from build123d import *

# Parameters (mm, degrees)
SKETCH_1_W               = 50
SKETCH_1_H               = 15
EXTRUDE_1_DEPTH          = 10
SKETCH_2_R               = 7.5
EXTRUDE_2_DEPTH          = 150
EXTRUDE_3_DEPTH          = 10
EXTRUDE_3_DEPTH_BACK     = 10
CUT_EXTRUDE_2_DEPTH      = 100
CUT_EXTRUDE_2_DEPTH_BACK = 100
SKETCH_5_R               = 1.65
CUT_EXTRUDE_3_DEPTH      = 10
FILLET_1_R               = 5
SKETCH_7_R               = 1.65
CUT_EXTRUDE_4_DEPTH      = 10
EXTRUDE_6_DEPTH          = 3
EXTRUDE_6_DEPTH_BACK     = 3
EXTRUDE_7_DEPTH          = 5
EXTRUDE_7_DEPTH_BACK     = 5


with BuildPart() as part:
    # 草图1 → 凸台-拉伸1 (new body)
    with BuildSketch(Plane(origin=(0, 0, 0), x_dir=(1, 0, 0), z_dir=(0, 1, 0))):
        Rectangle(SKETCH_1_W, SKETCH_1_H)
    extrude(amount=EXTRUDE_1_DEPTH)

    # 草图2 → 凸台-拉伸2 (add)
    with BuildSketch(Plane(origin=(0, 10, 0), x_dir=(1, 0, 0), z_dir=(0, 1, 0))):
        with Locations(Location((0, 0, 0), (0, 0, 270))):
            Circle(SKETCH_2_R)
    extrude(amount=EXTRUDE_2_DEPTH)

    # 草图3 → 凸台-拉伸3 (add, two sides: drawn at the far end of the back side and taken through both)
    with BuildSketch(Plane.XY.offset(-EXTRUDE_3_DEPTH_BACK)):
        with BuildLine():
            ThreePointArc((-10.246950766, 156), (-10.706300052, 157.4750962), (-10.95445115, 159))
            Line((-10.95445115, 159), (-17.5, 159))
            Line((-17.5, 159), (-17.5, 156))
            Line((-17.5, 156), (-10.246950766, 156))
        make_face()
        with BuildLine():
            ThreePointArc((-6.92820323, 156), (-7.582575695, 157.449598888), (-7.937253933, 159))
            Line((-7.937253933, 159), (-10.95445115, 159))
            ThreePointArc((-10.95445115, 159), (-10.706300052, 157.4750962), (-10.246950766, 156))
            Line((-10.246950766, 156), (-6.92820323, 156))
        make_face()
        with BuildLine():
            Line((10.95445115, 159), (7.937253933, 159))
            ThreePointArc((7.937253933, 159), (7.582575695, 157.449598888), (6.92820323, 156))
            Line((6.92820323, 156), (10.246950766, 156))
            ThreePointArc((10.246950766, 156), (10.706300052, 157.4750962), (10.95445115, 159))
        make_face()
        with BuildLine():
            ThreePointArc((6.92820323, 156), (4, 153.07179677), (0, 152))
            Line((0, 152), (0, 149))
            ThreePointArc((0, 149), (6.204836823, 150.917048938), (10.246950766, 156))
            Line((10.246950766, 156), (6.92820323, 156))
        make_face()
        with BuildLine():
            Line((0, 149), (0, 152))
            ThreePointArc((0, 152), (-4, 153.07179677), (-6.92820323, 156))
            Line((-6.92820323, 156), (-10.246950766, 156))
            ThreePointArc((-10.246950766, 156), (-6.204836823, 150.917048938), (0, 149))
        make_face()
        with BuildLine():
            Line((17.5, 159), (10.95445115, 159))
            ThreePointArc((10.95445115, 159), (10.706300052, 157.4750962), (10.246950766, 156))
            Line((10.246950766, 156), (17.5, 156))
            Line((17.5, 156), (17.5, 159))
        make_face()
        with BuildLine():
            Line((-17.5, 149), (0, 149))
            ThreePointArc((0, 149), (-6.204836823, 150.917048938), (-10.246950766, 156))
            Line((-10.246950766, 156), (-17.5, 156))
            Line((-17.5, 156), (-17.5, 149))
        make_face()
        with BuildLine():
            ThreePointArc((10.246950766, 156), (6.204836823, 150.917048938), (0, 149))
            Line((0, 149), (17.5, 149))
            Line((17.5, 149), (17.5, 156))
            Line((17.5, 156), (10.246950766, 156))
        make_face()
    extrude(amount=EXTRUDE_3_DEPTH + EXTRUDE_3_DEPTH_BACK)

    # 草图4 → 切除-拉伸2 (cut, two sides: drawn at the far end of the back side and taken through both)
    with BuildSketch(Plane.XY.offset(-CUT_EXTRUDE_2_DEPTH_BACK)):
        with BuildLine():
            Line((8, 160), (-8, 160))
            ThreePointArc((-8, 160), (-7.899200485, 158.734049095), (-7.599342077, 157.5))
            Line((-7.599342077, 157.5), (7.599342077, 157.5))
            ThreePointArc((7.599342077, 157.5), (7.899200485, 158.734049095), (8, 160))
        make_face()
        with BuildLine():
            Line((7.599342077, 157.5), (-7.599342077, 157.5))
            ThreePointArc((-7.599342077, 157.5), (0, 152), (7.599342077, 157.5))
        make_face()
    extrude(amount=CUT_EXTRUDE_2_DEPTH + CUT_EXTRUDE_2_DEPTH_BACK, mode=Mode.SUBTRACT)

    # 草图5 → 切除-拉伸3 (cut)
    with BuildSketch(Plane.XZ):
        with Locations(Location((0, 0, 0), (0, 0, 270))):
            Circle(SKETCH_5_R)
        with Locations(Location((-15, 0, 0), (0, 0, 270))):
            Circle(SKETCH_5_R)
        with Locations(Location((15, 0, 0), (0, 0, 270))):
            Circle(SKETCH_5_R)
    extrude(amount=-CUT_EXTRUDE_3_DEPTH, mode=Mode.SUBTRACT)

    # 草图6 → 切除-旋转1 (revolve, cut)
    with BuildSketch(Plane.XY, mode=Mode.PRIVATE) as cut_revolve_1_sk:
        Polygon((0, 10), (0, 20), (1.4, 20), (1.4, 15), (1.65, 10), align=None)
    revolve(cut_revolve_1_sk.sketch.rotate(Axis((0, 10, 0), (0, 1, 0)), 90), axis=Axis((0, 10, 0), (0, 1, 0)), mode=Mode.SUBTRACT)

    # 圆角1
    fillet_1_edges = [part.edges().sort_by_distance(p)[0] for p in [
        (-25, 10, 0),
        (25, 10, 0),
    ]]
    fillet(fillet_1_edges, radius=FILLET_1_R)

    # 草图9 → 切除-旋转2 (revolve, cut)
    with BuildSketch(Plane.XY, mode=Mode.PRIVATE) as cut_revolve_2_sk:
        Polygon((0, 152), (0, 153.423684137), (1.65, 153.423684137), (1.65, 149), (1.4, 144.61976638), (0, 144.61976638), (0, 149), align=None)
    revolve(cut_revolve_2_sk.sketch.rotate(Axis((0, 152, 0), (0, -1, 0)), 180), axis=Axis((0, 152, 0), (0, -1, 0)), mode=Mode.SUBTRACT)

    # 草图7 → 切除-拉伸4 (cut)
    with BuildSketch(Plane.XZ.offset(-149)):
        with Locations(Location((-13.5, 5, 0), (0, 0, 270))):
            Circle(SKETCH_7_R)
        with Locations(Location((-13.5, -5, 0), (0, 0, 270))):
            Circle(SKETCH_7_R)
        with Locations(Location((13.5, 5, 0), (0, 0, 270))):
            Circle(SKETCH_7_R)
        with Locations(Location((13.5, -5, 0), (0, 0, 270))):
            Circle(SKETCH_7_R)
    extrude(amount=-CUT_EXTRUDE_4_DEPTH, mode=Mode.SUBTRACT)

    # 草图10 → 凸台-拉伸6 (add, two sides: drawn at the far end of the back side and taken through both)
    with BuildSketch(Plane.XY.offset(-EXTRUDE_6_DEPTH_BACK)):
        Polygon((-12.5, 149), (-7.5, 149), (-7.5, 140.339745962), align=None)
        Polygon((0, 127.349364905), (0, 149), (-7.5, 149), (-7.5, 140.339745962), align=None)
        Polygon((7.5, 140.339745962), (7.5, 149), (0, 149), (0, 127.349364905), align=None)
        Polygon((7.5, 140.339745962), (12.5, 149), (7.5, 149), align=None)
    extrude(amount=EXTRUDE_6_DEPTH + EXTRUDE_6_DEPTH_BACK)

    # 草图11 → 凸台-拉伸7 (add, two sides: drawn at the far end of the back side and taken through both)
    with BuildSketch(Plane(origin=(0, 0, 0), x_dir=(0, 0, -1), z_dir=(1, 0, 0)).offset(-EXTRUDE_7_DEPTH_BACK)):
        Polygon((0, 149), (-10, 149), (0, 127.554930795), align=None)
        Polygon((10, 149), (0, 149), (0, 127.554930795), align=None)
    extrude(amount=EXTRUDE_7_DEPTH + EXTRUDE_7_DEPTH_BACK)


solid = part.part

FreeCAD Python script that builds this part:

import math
import FreeCAD as App
import Part
import Sketcher

V = App.Vector
Q = App.Units.Quantity


def edges_at(feature, points):
    """Names of the edges that pass closest to the given points."""
    edges = feature.Shape.Edges
    near = lambda p: min(range(len(edges)), key=lambda i: edges[i].distToShape(Part.Vertex(*p))[0])
    return sorted({f"Edge{near(p) + 1}" for p in points})

doc = App.newDocument("Part")
body = doc.addObject("PartDesign::Body", "Body")

sketch1 = body.newObject("Sketcher::SketchObject", "Sketch")
sketch1.AttachmentSupport = (doc.getObject("XZ_Plane"), [""])
sketch1.MapMode = "FlatFace"
sketch1.addGeometry(Part.LineSegment(V(-25, -8, 0), V(-25, 8, 0)), False)
sketch1.addGeometry(Part.LineSegment(V(-25, 8, 0), V(25, 8, 0)), False)
sketch1.addGeometry(Part.LineSegment(V(25, 8, 0), V(25, -8, 0)), False)
sketch1.addGeometry(Part.LineSegment(V(25, -8, 0), V(-25, -8, 0)), False)
sketch1.addConstraint(Sketcher.Constraint("Coincident", 0, 2, 1, 1))
sketch1.addConstraint(Sketcher.Constraint("Coincident", 1, 2, 2, 1))
sketch1.addConstraint(Sketcher.Constraint("Coincident", 2, 2, 3, 1))
sketch1.addConstraint(Sketcher.Constraint("Coincident", 3, 2, 0, 1))
sketch1.addConstraint(Sketcher.Constraint("Vertical", 0))
sketch1.addConstraint(Sketcher.Constraint("Horizontal", 1))
sketch1.addConstraint(Sketcher.Constraint("Vertical", 2))
sketch1.addConstraint(Sketcher.Constraint("Horizontal", 3))
sketch1.addConstraint(Sketcher.Constraint("Symmetric", 0, 2, 2, 2, -1, 1))
sketch1.addConstraint(Sketcher.Constraint("DistanceX", 1, 1, 1, 2, 50.0))
sketch1.addConstraint(Sketcher.Constraint("DistanceY", 0, 1, 0, 2, 15.0))
pad1 = body.newObject("PartDesign::Pad", "Pad")
pad1.Profile = sketch1
pad1.Length = 10
pad1.Reversed = True

sketch2 = body.newObject("Sketcher::SketchObject", "Sketch001")
sketch2.AttachmentSupport = (doc.getObject("XZ_Plane"), [""])
sketch2.MapMode = "FlatFace"
sketch2.AttachmentOffset = App.Placement(V(0, 0, -10), App.Rotation())
sketch2.addGeometry(Part.Circle(V(0, 0, 0), V(0, 0, 1), 8), False)
sketch2.addConstraint(Sketcher.Constraint("Coincident", 0, 3, -1, 1))
sketch2.addConstraint(Sketcher.Constraint("Diameter", 0, 15.0))
pad2 = body.newObject("PartDesign::Pad", "Pad001")
pad2.Profile = sketch2
pad2.Length = 150
pad2.Reversed = True

sketch3 = body.newObject("Sketcher::SketchObject", "Sketch002")
sketch3.AttachmentSupport = (doc.getObject("XY_Plane"), [""])
sketch3.MapMode = "FlatFace"
sketch3.addGeometry(Part.ArcOfCircle(Part.Circle(V(0, 160, 0), V(0, 0, 1), 8), math.radians(-173), math.radians(-150)), False)
sketch3.addGeometry(Part.LineSegment(V(-7.9, 159, 0), V(-17.5, 159, 0)), False)
sketch3.addGeometry(Part.LineSegment(V(-17.5, 159, 0), V(-17.5, 149, 0)), False)
sketch3.addGeometry(Part.LineSegment(V(-17.5, 149, 0), V(17.5, 149, 0)), False)
sketch3.addGeometry(Part.LineSegment(V(17.5, 149, 0), V(17.5, 159, 0)), False)
sketch3.addGeometry(Part.LineSegment(V(17.5, 159, 0), V(7.9, 159, 0)), False)
sketch3.addGeometry(Part.ArcOfCircle(Part.Circle(V(0, 160, 0), V(0, 0, 1), 8), math.radians(-30), math.radians(-7)), False)
sketch3.addGeometry(Part.ArcOfCircle(Part.Circle(V(0, 160, 0), V(0, 0, 1), 8), math.radians(-90), math.radians(-30)), False)
sketch3.addGeometry(Part.ArcOfCircle(Part.Circle(V(0, 160, 0), V(0, 0, 1), 8), math.radians(-150), math.radians(-90)), False)
sketch3.addConstraint(Sketcher.Constraint("Coincident", 0, 1, 1, 1))
sketch3.addConstraint(Sketcher.Constraint("Coincident", 1, 2, 2, 1))
sketch3.addConstraint(Sketcher.Constraint("Coincident", 2, 2, 3, 1))
sketch3.addConstraint(Sketcher.Constraint("Coincident", 3, 2, 4, 1))
sketch3.addConstraint(Sketcher.Constraint("Coincident", 4, 2, 5, 1))
sketch3.addConstraint(Sketcher.Constraint("Coincident", 5, 2, 6, 2))
sketch3.addConstraint(Sketcher.Constraint("Tangent", 6, 1, 7, 2))
sketch3.addConstraint(Sketcher.Constraint("Tangent", 7, 1, 8, 2))
sketch3.addConstraint(Sketcher.Constraint("Tangent", 8, 1, 0, 2))
sketch3.addConstraint(Sketcher.Constraint("Horizontal", 1))
sketch3.addConstraint(Sketcher.Constraint("Vertical", 2))
sketch3.addConstraint(Sketcher.Constraint("Horizontal", 3))
sketch3.addConstraint(Sketcher.Constraint("Vertical", 4))
sketch3.addConstraint(Sketcher.Constraint("Horizontal", 5))
sketch3.addConstraint(Sketcher.Constraint("Coincident", 6, 3, 0, 3))
sketch3.addConstraint(Sketcher.Constraint("Equal", 0, 6))
sketch3.addConstraint(Sketcher.Constraint("Symmetric", 1, 2, 4, 2, -2))
sketch3.addConstraint(Sketcher.Constraint("Symmetric", 6, 1, 8, 1, -2))
sketch3.addConstraint(Sketcher.Constraint("PointOnObject", 7, 1, -2))
sketch3.addConstraint(Sketcher.Constraint("Radius", 0, 8.0))
sketch3.addConstraint(Sketcher.Constraint("DistanceX", 3, 1, 3, 2, 35.0))
sketch3.addConstraint(Sketcher.Constraint("DistanceY", 2, 2, 2, 1, 10.0))
sketch3.addConstraint(Sketcher.Constraint("DistanceY", -1, 1, 0, 3, 160.0))
sketch3.addConstraint(Sketcher.Constraint("DistanceY", -1, 1, 0, 1, 159.0))
sketch3.addConstraint(Sketcher.Constraint("DistanceY", -1, 1, 6, 1, 156.0))
pad3 = body.newObject("PartDesign::Pad", "Pad002")
pad3.Profile = sketch3
pad3.Type = "TwoLengths"
pad3.Length = 10
pad3.Length2 = 10

sketch4 = body.newObject("Sketcher::SketchObject", "Sketch003")
sketch4.AttachmentSupport = (doc.getObject("XY_Plane"), [""])
sketch4.MapMode = "FlatFace"
sketch4.addGeometry(Part.LineSegment(V(8, 160, 0), V(-8, 160, 0)), False)
sketch4.addGeometry(Part.ArcOfCircle(Part.Circle(V(0, 160, 0), V(0, 0, 1), 8), math.radians(-180), math.radians(-161.79)), False)
sketch4.addGeometry(Part.ArcOfCircle(Part.Circle(V(0, 160, 0), V(0, 0, 1), 8), math.radians(-162), math.radians(-18)), False)
sketch4.addGeometry(Part.ArcOfCircle(Part.Circle(V(0, 160, 0), V(0, 0, 1), 8), math.radians(-18.21), math.radians(0)), False)
sketch4.addConstraint(Sketcher.Constraint("Coincident", 0, 2, 1, 1))
sketch4.addConstraint(Sketcher.Constraint("Tangent", 1, 2, 2, 1))
sketch4.addConstraint(Sketcher.Constraint("Tangent", 2, 2, 3, 1))
sketch4.addConstraint(Sketcher.Constraint("Coincident", 3, 2, 0, 1))
sketch4.addConstraint(Sketcher.Constraint("Horizontal", 0))
sketch4.addConstraint(Sketcher.Constraint("Coincident", 3, 3, 1, 3))
sketch4.addConstraint(Sketcher.Constraint("Symmetric", 1, 2, 2, 2, -2))
sketch4.addConstraint(Sketcher.Constraint("Horizontal", 3, 3, 0, 2))
sketch4.addConstraint(Sketcher.Constraint("Radius", 1, 8.0))
sketch4.addConstraint(Sketcher.Constraint("DistanceY", -1, 1, 1, 3, 160.0))
sketch4.addConstraint(Sketcher.Constraint("DistanceY", -1, 1, 1, 2, 157.5))
pocket1 = body.newObject("PartDesign::Pocket", "Pocket")
pocket1.Profile = sketch4
pocket1.Type = "ThroughAll"
pocket1.Midplane = True

sketch5 = body.newObject("Sketcher::SketchObject", "Sketch004")
sketch5.AttachmentSupport = (doc.getObject("XZ_Plane"), [""])
sketch5.MapMode = "FlatFace"
sketch5.addGeometry(Part.Circle(V(0, 0, 0), V(0, 0, 1), 1.6), False)
sketch5.addGeometry(Part.Circle(V(-15, 0, 0), V(0, 0, 1), 1.6), False)
sketch5.addGeometry(Part.Circle(V(15, 0, 0), V(0, 0, 1), 1.6), False)
sketch5.addConstraint(Sketcher.Constraint("Coincident", 0, 3, -1, 1))
sketch5.addConstraint(Sketcher.Constraint("Equal", 0, 1))
sketch5.addConstraint(Sketcher.Constraint("Equal", 1, 2))
sketch5.addConstraint(Sketcher.Constraint("Symmetric", 1, 3, 2, 3, -1, 1))
sketch5.addConstraint(Sketcher.Constraint("PointOnObject", 1, 3, -1))
sketch5.addConstraint(Sketcher.Constraint("Diameter", 0, 3.3))
sketch5.addConstraint(Sketcher.Constraint("DistanceX", 1, 3, -1, 1, 15.0))
pocket2 = body.newObject("PartDesign::Pocket", "Pocket001")
pocket2.Profile = sketch5
pocket2.Length = 10

sketch6 = body.newObject("Sketcher::SketchObject", "Sketch005")
sketch6.AttachmentSupport = (doc.getObject("XY_Plane"), [""])
sketch6.MapMode = "FlatFace"
sketch6.addGeometry(Part.LineSegment(V(0, 20, 0), V(0, 10, 0)), False)
sketch6.addGeometry(Part.LineSegment(V(0, 10, 0), V(1.6, 10, 0)), False)
sketch6.addGeometry(Part.LineSegment(V(1.6, 10, 0), V(1.4, 15, 0)), False)
sketch6.addGeometry(Part.LineSegment(V(1.4, 15, 0), V(1.4, 20, 0)), False)
sketch6.addGeometry(Part.LineSegment(V(1.4, 20, 0), V(0, 20, 0)), False)
sketch6.addConstraint(Sketcher.Constraint("Coincident", 0, 2, 1, 1))
sketch6.addConstraint(Sketcher.Constraint("Coincident", 1, 2, 2, 1))
sketch6.addConstraint(Sketcher.Constraint("Coincident", 2, 2, 3, 1))
sketch6.addConstraint(Sketcher.Constraint("Coincident", 3, 2, 4, 1))
sketch6.addConstraint(Sketcher.Constraint("Coincident", 4, 2, 0, 1))
sketch6.addConstraint(Sketcher.Constraint("Vertical", 0))
sketch6.addConstraint(Sketcher.Constraint("Horizontal", 1))
sketch6.addConstraint(Sketcher.Constraint("Vertical", 3))
sketch6.addConstraint(Sketcher.Constraint("Horizontal", 4))
sketch6.addConstraint(Sketcher.Constraint("PointOnObject", 0, 2, -2))
sketch6.addConstraint(Sketcher.Constraint("DistanceY", 0, 2, 0, 1, 10.0))
sketch6.addConstraint(Sketcher.Constraint("DistanceY", 3, 1, 3, 2, 5.0))
sketch6.addConstraint(Sketcher.Constraint("DistanceX", 4, 2, 4, 1, 1.4))
sketch6.addConstraint(Sketcher.Constraint("DistanceY", -1, 1, 0, 2, 10.0))
sketch6.addConstraint(Sketcher.Constraint("DistanceX", 1, 1, 1, 2, 1.65))
groove = body.newObject("PartDesign::Groove", "Groove")
groove.Profile = sketch6
groove.ReferenceAxis = (sketch6, ["V_Axis"])
groove.Angle = 360
doc.recompute()

fillet = body.newObject("PartDesign::Fillet", "Fillet")
fillet.Base = (groove, edges_at(groove, [(-25, 10, 0), (25, 10, 0)]))
fillet.Radius = 5

sketch7 = body.newObject("Sketcher::SketchObject", "Sketch006")
sketch7.AttachmentSupport = (doc.getObject("XY_Plane"), [""])
sketch7.MapMode = "FlatFace"
sketch7.addGeometry(Part.LineSegment(V(0, 153.4, 0), V(0, 144.6, 0)), False)
sketch7.addGeometry(Part.LineSegment(V(0, 144.6, 0), V(1.4, 144.6, 0)), False)
sketch7.addGeometry(Part.LineSegment(V(1.4, 144.6, 0), V(1.6, 149, 0)), False)
sketch7.addGeometry(Part.LineSegment(V(1.6, 149, 0), V(1.6, 153.4, 0)), False)
sketch7.addGeometry(Part.LineSegment(V(1.6, 153.4, 0), V(0, 153.4, 0)), False)
sketch7.addConstraint(Sketcher.Constraint("Coincident", 0, 2, 1, 1))
sketch7.addConstraint(Sketcher.Constraint("Coincident", 1, 2, 2, 1))
sketch7.addConstraint(Sketcher.Constraint("Coincident", 2, 2, 3, 1))
sketch7.addConstraint(Sketcher.Constraint("Coincident", 3, 2, 4, 1))
sketch7.addConstraint(Sketcher.Constraint("Coincident", 4, 2, 0, 1))
sketch7.addConstraint(Sketcher.Constraint("Vertical", 0))
sketch7.addConstraint(Sketcher.Constraint("Horizontal", 1))
sketch7.addConstraint(Sketcher.Constraint("Vertical", 3))
sketch7.addConstraint(Sketcher.Constraint("Horizontal", 4))
sketch7.addConstraint(Sketcher.Constraint("PointOnObject", 0, 2, -2))
sketch7.addConstraint(Sketcher.Constraint("DistanceX", 1, 1, 1, 2, 1.4))
sketch7.addConstraint(Sketcher.Constraint("DistanceY", -1, 1, 2, 2, 149.0))
sketch7.addConstraint(Sketcher.Constraint("DistanceX", 4, 2, 4, 1, 1.65))
sketch7.addConstraint(Sketcher.Constraint("DistanceY", 0, 2, 0, 1, 8.803918))
sketch7.addConstraint(Sketcher.Constraint("DistanceY", 3, 1, 3, 2, 4.423684))
groove2 = body.newObject("PartDesign::Groove", "Groove001")
groove2.Profile = sketch7
groove2.ReferenceAxis = (sketch7, ["V_Axis"])
groove2.Angle = 360

sketch8 = body.newObject("Sketcher::SketchObject", "Sketch007")
sketch8.AttachmentSupport = (doc.getObject("XZ_Plane"), [""])
sketch8.MapMode = "FlatFace"
sketch8.AttachmentOffset = App.Placement(V(0, 0, -149), App.Rotation())
sketch8.addGeometry(Part.Circle(V(-13.5, 5, 0), V(0, 0, 1), 1.6), False)
sketch8.addGeometry(Part.Circle(V(-13.5, -5, 0), V(0, 0, 1), 1.6), False)
sketch8.addGeometry(Part.Circle(V(13.5, 5, 0), V(0, 0, 1), 1.6), False)
sketch8.addGeometry(Part.Circle(V(13.5, -5, 0), V(0, 0, 1), 1.6), False)
sketch8.addConstraint(Sketcher.Constraint("Equal", 0, 1))
sketch8.addConstraint(Sketcher.Constraint("Equal", 1, 2))
sketch8.addConstraint(Sketcher.Constraint("Equal", 2, 3))
sketch8.addConstraint(Sketcher.Constraint("Symmetric", 1, 3, 2, 3, -1, 1))
sketch8.addConstraint(Sketcher.Constraint("Symmetric", 0, 3, 3, 3, -1, 1))
sketch8.addConstraint(Sketcher.Constraint("Symmetric", 0, 3, 2, 3, -2))
sketch8.addConstraint(Sketcher.Constraint("Diameter", 0, 3.3))
sketch8.addConstraint(Sketcher.Constraint("DistanceY", -1, 1, 0, 3, 5.0))
sketch8.addConstraint(Sketcher.Constraint("DistanceX", 0, 3, 2, 3, 27.0))
pocket3 = body.newObject("PartDesign::Pocket", "Pocket002")
pocket3.Profile = sketch8
pocket3.Length = 10

sketch9 = body.newObject("Sketcher::SketchObject", "Sketch008")
sketch9.AttachmentSupport = (doc.getObject("XY_Plane"), [""])
sketch9.MapMode = "FlatFace"
sketch9.addGeometry(Part.LineSegment(V(12, 149, 0), V(-12, 149, 0)), False)
sketch9.addGeometry(Part.LineSegment(V(-12, 149, 0), V(0, 127, 0)), False)
sketch9.addGeometry(Part.LineSegment(V(0, 127, 0), V(12, 149, 0)), False)
sketch9.addConstraint(Sketcher.Constraint("Coincident", 0, 2, 1, 1))
sketch9.addConstraint(Sketcher.Constraint("Coincident", 1, 2, 2, 1))
sketch9.addConstraint(Sketcher.Constraint("Coincident", 2, 2, 0, 1))
sketch9.addConstraint(Sketcher.Constraint("Horizontal", 0))
sketch9.addConstraint(Sketcher.Constraint("PointOnObject", 1, 2, -2))
sketch9.addConstraint(Sketcher.Constraint("Equal", 1, 2))
sketch9.addConstraint(Sketcher.Constraint("DistanceX", 0, 2, 0, 1, 25.0))
sketch9.addConstraint(Sketcher.Constraint("Angle", 1, Q("-60 deg")))
sketch9.addConstraint(Sketcher.Constraint("DistanceY", -1, 1, 0, 2, 149.0))
pad4 = body.newObject("PartDesign::Pad", "Pad003")
pad4.Profile = sketch9
pad4.Type = "TwoLengths"
pad4.Length = 3
pad4.Length2 = 3

sketch10 = body.newObject("Sketcher::SketchObject", "Sketch009")
sketch10.AttachmentSupport = (doc.getObject("YZ_Plane"), [""])
sketch10.MapMode = "FlatFace"
sketch10.addGeometry(Part.LineSegment(V(149, 10, 0), V(128, 0, 0)), False)
sketch10.addGeometry(Part.LineSegment(V(128, 0, 0), V(149, -10, 0)), False)
sketch10.addGeometry(Part.LineSegment(V(149, -10, 0), V(149, 10, 0)), False)
sketch10.addConstraint(Sketcher.Constraint("Coincident", 0, 2, 1, 1))
sketch10.addConstraint(Sketcher.Constraint("Coincident", 1, 2, 2, 1))
sketch10.addConstraint(Sketcher.Constraint("Coincident", 2, 2, 0, 1))
sketch10.addConstraint(Sketcher.Constraint("Vertical", 2))
sketch10.addConstraint(Sketcher.Constraint("PointOnObject", 0, 2, -1))
sketch10.addConstraint(Sketcher.Constraint("Equal", 0, 1))
sketch10.addConstraint(Sketcher.Constraint("DistanceY", 2, 1, 2, 2, 20.0))
sketch10.addConstraint(Sketcher.Constraint("Angle", 0, Q("-155 deg")))
sketch10.addConstraint(Sketcher.Constraint("DistanceX", -1, 1, 1, 2, 149.0))
pad5 = body.newObject("PartDesign::Pad", "Pad004")
pad5.Profile = sketch10
pad5.Type = "TwoLengths"
pad5.Length = 5
pad5.Length2 = 5

doc.recompute()
